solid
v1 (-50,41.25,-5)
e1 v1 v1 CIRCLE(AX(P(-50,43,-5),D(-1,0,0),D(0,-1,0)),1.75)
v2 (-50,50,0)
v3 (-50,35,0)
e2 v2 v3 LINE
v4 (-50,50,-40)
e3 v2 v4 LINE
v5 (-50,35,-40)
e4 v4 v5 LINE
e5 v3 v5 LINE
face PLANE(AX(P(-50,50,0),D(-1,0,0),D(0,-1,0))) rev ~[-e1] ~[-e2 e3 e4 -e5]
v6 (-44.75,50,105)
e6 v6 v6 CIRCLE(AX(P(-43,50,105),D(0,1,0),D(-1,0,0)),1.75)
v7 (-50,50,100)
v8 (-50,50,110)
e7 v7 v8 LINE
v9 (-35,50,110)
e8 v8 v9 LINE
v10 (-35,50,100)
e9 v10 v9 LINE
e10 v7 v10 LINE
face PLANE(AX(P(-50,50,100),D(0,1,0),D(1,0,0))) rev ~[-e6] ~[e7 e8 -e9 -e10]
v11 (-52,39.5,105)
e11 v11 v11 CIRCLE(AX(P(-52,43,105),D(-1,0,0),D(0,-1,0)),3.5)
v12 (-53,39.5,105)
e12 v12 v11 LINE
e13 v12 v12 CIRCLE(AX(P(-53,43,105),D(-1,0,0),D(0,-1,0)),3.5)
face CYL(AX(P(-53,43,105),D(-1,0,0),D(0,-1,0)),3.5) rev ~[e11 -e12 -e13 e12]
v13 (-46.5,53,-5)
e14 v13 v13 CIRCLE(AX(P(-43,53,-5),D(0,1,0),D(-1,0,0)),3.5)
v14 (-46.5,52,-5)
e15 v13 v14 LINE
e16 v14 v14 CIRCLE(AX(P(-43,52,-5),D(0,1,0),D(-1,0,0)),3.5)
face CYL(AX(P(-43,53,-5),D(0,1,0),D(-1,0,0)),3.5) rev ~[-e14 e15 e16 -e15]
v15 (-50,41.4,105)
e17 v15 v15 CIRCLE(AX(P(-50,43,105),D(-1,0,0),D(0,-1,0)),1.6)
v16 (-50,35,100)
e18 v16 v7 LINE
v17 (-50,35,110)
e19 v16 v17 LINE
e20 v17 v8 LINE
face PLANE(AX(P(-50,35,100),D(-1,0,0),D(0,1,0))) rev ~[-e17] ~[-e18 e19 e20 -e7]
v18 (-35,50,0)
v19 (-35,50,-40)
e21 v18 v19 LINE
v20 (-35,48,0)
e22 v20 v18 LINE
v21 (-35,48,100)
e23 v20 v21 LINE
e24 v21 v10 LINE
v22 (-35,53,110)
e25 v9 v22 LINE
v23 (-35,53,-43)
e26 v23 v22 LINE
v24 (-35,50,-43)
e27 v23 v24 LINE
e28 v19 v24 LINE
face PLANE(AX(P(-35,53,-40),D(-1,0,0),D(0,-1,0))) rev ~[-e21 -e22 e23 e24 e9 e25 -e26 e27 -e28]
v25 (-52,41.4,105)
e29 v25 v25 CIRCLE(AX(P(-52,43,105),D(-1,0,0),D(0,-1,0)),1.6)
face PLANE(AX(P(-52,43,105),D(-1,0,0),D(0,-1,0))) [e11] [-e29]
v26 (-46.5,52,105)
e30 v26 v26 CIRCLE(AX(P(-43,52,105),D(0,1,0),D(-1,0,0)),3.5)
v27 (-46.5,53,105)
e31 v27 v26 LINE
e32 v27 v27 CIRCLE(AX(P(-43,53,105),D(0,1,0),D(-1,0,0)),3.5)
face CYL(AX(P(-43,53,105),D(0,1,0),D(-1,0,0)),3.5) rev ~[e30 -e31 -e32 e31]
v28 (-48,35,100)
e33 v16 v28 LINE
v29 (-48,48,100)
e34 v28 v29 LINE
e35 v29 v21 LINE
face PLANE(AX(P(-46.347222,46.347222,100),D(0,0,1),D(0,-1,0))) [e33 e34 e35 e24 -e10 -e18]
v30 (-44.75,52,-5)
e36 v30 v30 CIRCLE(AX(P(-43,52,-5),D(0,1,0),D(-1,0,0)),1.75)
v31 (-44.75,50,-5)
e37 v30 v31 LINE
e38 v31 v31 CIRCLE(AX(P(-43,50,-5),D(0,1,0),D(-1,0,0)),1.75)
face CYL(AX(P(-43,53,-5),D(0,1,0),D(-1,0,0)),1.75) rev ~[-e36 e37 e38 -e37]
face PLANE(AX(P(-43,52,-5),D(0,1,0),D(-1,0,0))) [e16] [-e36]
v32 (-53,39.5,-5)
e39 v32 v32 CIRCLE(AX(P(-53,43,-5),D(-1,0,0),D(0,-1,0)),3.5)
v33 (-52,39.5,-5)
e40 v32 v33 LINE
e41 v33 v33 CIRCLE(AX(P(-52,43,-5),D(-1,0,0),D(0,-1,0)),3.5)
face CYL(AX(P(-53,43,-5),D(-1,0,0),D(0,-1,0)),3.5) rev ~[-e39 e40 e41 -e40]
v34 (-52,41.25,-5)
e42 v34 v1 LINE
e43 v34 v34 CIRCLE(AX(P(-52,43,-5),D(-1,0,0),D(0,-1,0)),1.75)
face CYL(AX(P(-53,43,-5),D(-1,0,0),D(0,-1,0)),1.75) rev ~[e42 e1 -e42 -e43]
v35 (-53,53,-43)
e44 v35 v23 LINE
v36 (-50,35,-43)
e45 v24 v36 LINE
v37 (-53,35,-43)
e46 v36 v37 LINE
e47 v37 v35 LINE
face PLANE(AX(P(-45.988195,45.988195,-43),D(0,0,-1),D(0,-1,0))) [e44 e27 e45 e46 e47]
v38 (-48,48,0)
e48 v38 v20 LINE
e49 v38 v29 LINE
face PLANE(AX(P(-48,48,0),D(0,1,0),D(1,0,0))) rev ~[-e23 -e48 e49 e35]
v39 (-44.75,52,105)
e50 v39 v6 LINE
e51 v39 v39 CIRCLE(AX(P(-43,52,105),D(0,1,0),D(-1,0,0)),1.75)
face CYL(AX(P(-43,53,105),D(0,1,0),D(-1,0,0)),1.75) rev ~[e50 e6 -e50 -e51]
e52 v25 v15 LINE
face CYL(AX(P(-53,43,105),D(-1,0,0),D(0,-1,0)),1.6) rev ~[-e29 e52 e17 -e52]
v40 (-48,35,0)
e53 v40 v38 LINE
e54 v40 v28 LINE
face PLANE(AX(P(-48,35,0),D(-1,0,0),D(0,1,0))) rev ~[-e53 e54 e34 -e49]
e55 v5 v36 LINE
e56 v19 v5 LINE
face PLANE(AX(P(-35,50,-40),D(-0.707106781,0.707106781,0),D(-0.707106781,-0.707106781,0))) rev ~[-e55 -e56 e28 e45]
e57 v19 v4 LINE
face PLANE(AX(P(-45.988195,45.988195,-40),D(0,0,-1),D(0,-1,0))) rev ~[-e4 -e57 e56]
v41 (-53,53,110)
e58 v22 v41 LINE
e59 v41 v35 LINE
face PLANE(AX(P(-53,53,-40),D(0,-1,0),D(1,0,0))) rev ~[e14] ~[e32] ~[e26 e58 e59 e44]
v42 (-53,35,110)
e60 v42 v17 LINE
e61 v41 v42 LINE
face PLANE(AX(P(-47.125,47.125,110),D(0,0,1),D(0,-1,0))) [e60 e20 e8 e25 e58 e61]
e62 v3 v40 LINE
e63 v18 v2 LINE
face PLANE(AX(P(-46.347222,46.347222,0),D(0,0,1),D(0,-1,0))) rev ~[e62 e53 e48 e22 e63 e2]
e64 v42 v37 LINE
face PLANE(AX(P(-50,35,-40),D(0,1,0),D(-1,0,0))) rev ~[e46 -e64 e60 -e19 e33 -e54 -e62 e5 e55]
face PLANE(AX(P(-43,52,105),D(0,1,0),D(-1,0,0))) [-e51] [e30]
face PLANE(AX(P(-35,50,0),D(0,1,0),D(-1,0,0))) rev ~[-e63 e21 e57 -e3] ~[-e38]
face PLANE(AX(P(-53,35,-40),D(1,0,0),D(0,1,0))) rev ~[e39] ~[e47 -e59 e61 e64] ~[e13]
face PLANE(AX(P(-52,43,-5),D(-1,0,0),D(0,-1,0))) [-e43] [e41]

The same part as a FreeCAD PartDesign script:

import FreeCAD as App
import Part
import Sketcher
Q = App.Units.Quantity

doc = App.newDocument("Part")
body = doc.addObject("PartDesign::Body", "Body")

sketch1 = doc.addObject("Sketcher::SketchObject", "Sketch")
body.addObject(sketch1)
sketch1.AttachmentSupport = (doc.XY_Plane, [""])
sketch1.MapMode = "FlatFace"
sketch1.addGeometry(Part.LineSegment(App.Vector(-53, -35, 0), App.Vector(-53, -53, 0)), False)
sketch1.addGeometry(Part.LineSegment(App.Vector(-53, -53, 0), App.Vector(-35, -53, 0)), False)
sketch1.addGeometry(Part.LineSegment(App.Vector(-35, -53, 0), App.Vector(-35, -48, 0)), False)
sketch1.addGeometry(Part.LineSegment(App.Vector(-35, -48, 0), App.Vector(-48, -48, 0)), False)
sketch1.addGeometry(Part.LineSegment(App.Vector(-48, -48, 0), App.Vector(-48, -35, 0)), False)
sketch1.addGeometry(Part.LineSegment(App.Vector(-48, -35, 0), App.Vector(-53, -35, 0)), False)
sketch1.addConstraint(Sketcher.Constraint("Coincident", 0, 2, 1, 1))
sketch1.addConstraint(Sketcher.Constraint("Coincident", 1, 2, 2, 1))
sketch1.addConstraint(Sketcher.Constraint("Coincident", 2, 2, 3, 1))
sketch1.addConstraint(Sketcher.Constraint("Coincident", 3, 2, 4, 1))
sketch1.addConstraint(Sketcher.Constraint("Coincident", 4, 2, 5, 1))
sketch1.addConstraint(Sketcher.Constraint("Coincident", 5, 2, 0, 1))
sketch1.addConstraint(Sketcher.Constraint("Vertical", 0))
sketch1.addConstraint(Sketcher.Constraint("Horizontal", 1))
sketch1.addConstraint(Sketcher.Constraint("Vertical", 2))
sketch1.addConstraint(Sketcher.Constraint("Horizontal", 3))
sketch1.addConstraint(Sketcher.Constraint("Vertical", 4))
sketch1.addConstraint(Sketcher.Constraint("Horizontal", 5))
sketch1.addConstraint(Sketcher.Constraint("Equal", 1, 0))
sketch1.addConstraint(Sketcher.Constraint("Equal", 5, 2))
sketch1.addConstraint(Sketcher.Constraint("DistanceX", 1, 1, 1, 2, Q("18 mm")))
sketch1.addConstraint(Sketcher.Constraint("DistanceX", 3, 2, 3, 1, Q("13 mm")))
sketch1.addConstraint(Sketcher.Constraint("DistanceX", 0, 2, -1, 1, Q("53 mm")))
sketch1.addConstraint(Sketcher.Constraint("DistanceY", 0, 2, -1, 1, Q("53 mm")))
pad1 = doc.addObject("PartDesign::Pad", "Pad")
body.addObject(pad1)
pad1.Profile = sketch1
pad1.Length = 100

sketch2 = doc.addObject("Sketcher::SketchObject", "Sketch001")
body.addObject(sketch2)
sketch2.AttachmentSupport = (doc.XY_Plane, [""])
sketch2.MapMode = "FlatFace"
sketch2.AttachmentOffset = App.Placement(App.Vector(0, 0, 100), App.Rotation())
sketch2.addGeometry(Part.LineSegment(App.Vector(-53, -35, 0), App.Vector(-53, -53, 0)), False)
sketch2.addGeometry(Part.LineSegment(App.Vector(-53, -53, 0), App.Vector(-35, -53, 0)), False)
sketch2.addGeometry(Part.LineSegment(App.Vector(-35, -53, 0), App.Vector(-35, -50, 0)), False)
sketch2.addGeometry(Part.LineSegment(App.Vector(-35, -50, 0), App.Vector(-50, -50, 0)), False)
sketch2.addGeometry(Part.LineSegment(App.Vector(-50, -50, 0), App.Vector(-50, -35, 0)), False)
sketch2.addGeometry(Part.LineSegment(App.Vector(-50, -35, 0), App.Vector(-53, -35, 0)), False)
sketch2.addConstraint(Sketcher.Constraint("Coincident", 0, 2, 1, 1))
sketch2.addConstraint(Sketcher.Constraint("Coincident", 1, 2, 2, 1))
sketch2.addConstraint(Sketcher.Constraint("Coincident", 2, 2, 3, 1))
sketch2.addConstraint(Sketcher.Constraint("Coincident", 3, 2, 4, 1))
sketch2.addConstraint(Sketcher.Constraint("Coincident", 4, 2, 5, 1))
sketch2.addConstraint(Sketcher.Constraint("Coincident", 5, 2, 0, 1))
sketch2.addConstraint(Sketcher.Constraint("Vertical", 0))
sketch2.addConstraint(Sketcher.Constraint("Horizontal", 1))
sketch2.addConstraint(Sketcher.Constraint("Vertical", 2))
sketch2.addConstraint(Sketcher.Constraint("Horizontal", 3))
sketch2.addConstraint(Sketcher.Constraint("Vertical", 4))
sketch2.addConstraint(Sketcher.Constraint("Horizontal", 5))
sketch2.addConstraint(Sketcher.Constraint("Equal", 1, 0))
sketch2.addConstraint(Sketcher.Constraint("Equal", 5, 2))
sketch2.addConstraint(Sketcher.Constraint("DistanceX", 1, 1, 1, 2, Q("18 mm")))
sketch2.addConstraint(Sketcher.Constraint("DistanceX", 3, 2, 3, 1, Q("15 mm")))
sketch2.addConstraint(Sketcher.Constraint("DistanceX", 0, 2, -1, 1, Q("53 mm")))
sketch2.addConstraint(Sketcher.Constraint("DistanceY", 0, 2, -1, 1, Q("53 mm")))
pad2 = doc.addObject("PartDesign::Pad", "Pad001")
body.addObject(pad2)
pad2.Profile = sketch2
pad2.Length = 10

sketch3 = doc.addObject("Sketcher::SketchObject", "Sketch002")
body.addObject(sketch3)
sketch3.AttachmentSupport = (doc.XZ_Plane, [""])
sketch3.MapMode = "FlatFace"
sketch3.AttachmentOffset = App.Placement(App.Vector(0, 0, 53), App.Rotation())
sketch3.addGeometry(Part.Circle(App.Vector(-43, 105, 0), App.Vector(0, 0, 1), 1.6), False)
sketch3.addConstraint(Sketcher.Constraint("Diameter", 0, Q("3.2 mm")))
sketch3.addConstraint(Sketcher.Constraint("DistanceX", 0, 3, -1, 1, Q("43 mm")))
sketch3.addConstraint(Sketcher.Constraint("DistanceY", -1, 1, 0, 3, Q("105 mm")))
pocket1 = doc.addObject("PartDesign::Pocket", "Pocket")
body.addObject(pocket1)
pocket1.Profile = sketch3
pocket1.Length = 5

sketch4 = doc.addObject("Sketcher::SketchObject", "Sketch003")
body.addObject(sketch4)
sketch4.AttachmentSupport = (doc.XZ_Plane, [""])
sketch4.MapMode = "FlatFace"
sketch4.AttachmentOffset = App.Placement(App.Vector(0, 0, 53), App.Rotation())
sketch4.addGeometry(Part.Circle(App.Vector(-43, 105, 0), App.Vector(0, 0, 1), 3.5), False)
sketch4.addConstraint(Sketcher.Constraint("Diameter", 0, Q("7 mm")))
sketch4.addConstraint(Sketcher.Constraint("DistanceX", 0, 3, -1, 1, Q("43 mm")))
sketch4.addConstraint(Sketcher.Constraint("DistanceY", -1, 1, 0, 3, Q("105 mm")))
pocket2 = doc.addObject("PartDesign::Pocket", "Pocket001")
body.addObject(pocket2)
pocket2.Profile = sketch4
pocket2.Length = 1

sketch5 = doc.addObject("Sketcher::SketchObject", "Sketch004")
body.addObject(sketch5)
sketch5.AttachmentSupport = (doc.YZ_Plane, [""])
sketch5.MapMode = "FlatFace"
sketch5.AttachmentOffset = App.Placement(App.Vector(0, 0, -53), App.Rotation())
sketch5.addGeometry(Part.Circle(App.Vector(-43, 105, 0), App.Vector(0, 0, 1), 1.8), False)
sketch5.addConstraint(Sketcher.Constraint("Diameter", 0, Q("3.5 mm")))
sketch5.addConstraint(Sketcher.Constraint("DistanceX", 0, 3, -1, 1, Q("43 mm")))
sketch5.addConstraint(Sketcher.Constraint("DistanceY", -1, 1, 0, 3, Q("105 mm")))
pocket3 = doc.addObject("PartDesign::Pocket", "Pocket002")
body.addObject(pocket3)
pocket3.Profile = sketch5
pocket3.Length = 5
pocket3.Reversed = True

sketch6 = doc.addObject("Sketcher::SketchObject", "Sketch005")
body.addObject(sketch6)
sketch6.AttachmentSupport = (doc.YZ_Plane, [""])
sketch6.MapMode = "FlatFace"
sketch6.AttachmentOffset = App.Placement(App.Vector(0, 0, -53), App.Rotation())
sketch6.addGeometry(Part.Circle(App.Vector(-43, 105, 0), App.Vector(0, 0, 1), 3.5), False)
sketch6.addConstraint(Sketcher.Constraint("Diameter", 0, Q("7 mm")))
sketch6.addConstraint(Sketcher.Constraint("DistanceX", 0, 3, -1, 1, Q("43 mm")))
sketch6.addConstraint(Sketcher.Constraint("DistanceY", -1, 1, 0, 3, Q("105 mm")))
pocket4 = doc.addObject("PartDesign::Pocket", "Pocket003")
body.addObject(pocket4)
pocket4.Profile = sketch6
pocket4.Length = 1
pocket4.Reversed = True

sketch7 = doc.addObject("Sketcher::SketchObject", "Sketch006")
body.addObject(sketch7)
sketch7.AttachmentSupport = (doc.XY_Plane, [""])
sketch7.MapMode = "FlatFace"
sketch7.addGeometry(Part.LineSegment(App.Vector(-35, -53, 0), App.Vector(-53, -53, 0)), False)
sketch7.addGeometry(Part.LineSegment(App.Vector(-53, -53, 0), App.Vector(-53, -35, 0)), False)
sketch7.addGeometry(Part.LineSegment(App.Vector(-53, -35, 0), App.Vector(-50, -35, 0)), False)
sketch7.addGeometry(Part.LineSegment(App.Vector(-50, -35, 0), App.Vector(-50, -50, 0)), False)
sketch7.addGeometry(Part.LineSegment(App.Vector(-50, -50, 0), App.Vector(-35, -50, 0)), False)
sketch7.addGeometry(Part.LineSegment(App.Vector(-35, -50, 0), App.Vector(-35, -53, 0)), False)
sketch7.addConstraint(Sketcher.Constraint("Coincident", 0, 2, 1, 1))
sketch7.addConstraint(Sketcher.Constraint("Coincident", 1, 2, 2, 1))
sketch7.addConstraint(Sketcher.Constraint("Coincident", 2, 2, 3, 1))
sketch7.addConstraint(Sketcher.Constraint("Coincident", 3, 2, 4, 1))
sketch7.addConstraint(Sketcher.Constraint("Coincident", 4, 2, 5, 1))
sketch7.addConstraint(Sketcher.Constraint("Coincident", 5, 2, 0, 1))
sketch7.addConstraint(Sketcher.Constraint("Horizontal", 0))
sketch7.addConstraint(Sketcher.Constraint("Vertical", 1))
sketch7.addConstraint(Sketcher.Constraint("Horizontal", 2))
sketch7.addConstraint(Sketcher.Constraint("Vertical", 3))
sketch7.addConstraint(Sketcher.Constraint("Horizontal", 4))
sketch7.addConstraint(Sketcher.Constraint("Vertical", 5))
sketch7.addConstraint(Sketcher.Constraint("Equal", 0, 1))
sketch7.addConstraint(Sketcher.Constraint("Equal", 4, 3))
sketch7.addConstraint(Sketcher.Constraint("DistanceX", 0, 2, 0, 1, Q("18 mm")))
sketch7.addConstraint(Sketcher.Constraint("DistanceX", 2, 1, 2, 2, Q("3 mm")))
sketch7.addConstraint(Sketcher.Constraint("DistanceX", 0, 2, -1, 1, Q("53 mm")))
sketch7.addConstraint(Sketcher.Constraint("DistanceY", 0, 2, -1, 1, Q("53 mm")))
pad3 = doc.addObject("PartDesign::Pad", "Pad002")
body.addObject(pad3)
pad3.Profile = sketch7
pad3.Length = 40
pad3.Reversed = True

sketch8 = doc.addObject("Sketcher::SketchObject", "Sketch007")
body.addObject(sketch8)
sketch8.AttachmentSupport = (doc.XY_Plane, [""])
sketch8.MapMode = "FlatFace"
sketch8.AttachmentOffset = App.Placement(App.Vector(0, 0, -40), App.Rotation())
sketch8.addGeometry(Part.LineSegment(App.Vector(-35, -50, 0), App.Vector(-35, -53, 0)), False)
sketch8.addGeometry(Part.LineSegment(App.Vector(-35, -53, 0), App.Vector(-53, -53, 0)), False)
sketch8.addGeometry(Part.LineSegment(App.Vector(-53, -53, 0), App.Vector(-53, -35, 0)), False)
sketch8.addGeometry(Part.LineSegment(App.Vector(-53, -35, 0), App.Vector(-50, -35, 0)), False)
sketch8.addGeometry(Part.LineSegment(App.Vector(-50, -35, 0), App.Vector(-35, -50, 0)), False)
sketch8.addConstraint(Sketcher.Constraint("Coincident", 0, 2, 1, 1))
sketch8.addConstraint(Sketcher.Constraint("Coincident", 1, 2, 2, 1))
sketch8.addConstraint(Sketcher.Constraint("Coincident", 2, 2, 3, 1))
sketch8.addConstraint(Sketcher.Constraint("Coincident", 3, 2, 4, 1))
sketch8.addConstraint(Sketcher.Constraint("Coincident", 4, 2, 0, 1))
sketch8.addConstraint(Sketcher.Constraint("Vertical", 0))
sketch8.addConstraint(Sketcher.Constraint("Horizontal", 1))
sketch8.addConstraint(Sketcher.Constraint("Vertical", 2))
sketch8.addConstraint(Sketcher.Constraint("Horizontal", 3))
sketch8.addConstraint(Sketcher.Constraint("Equal", 3, 0))
sketch8.addConstraint(Sketcher.Constraint("Equal", 1, 2))
sketch8.addConstraint(Sketcher.Constraint("DistanceX", 1, 2, 1, 1, Q("18 mm")))
sketch8.addConstraint(Sketcher.Constraint("DistanceX", 3, 1, 3, 2, Q("3 mm")))
sketch8.addConstraint(Sketcher.Constraint("DistanceX", 0, 2, -1, 1, Q("35 mm")))
sketch8.addConstraint(Sketcher.Constraint("DistanceY", 0, 2, -1, 1, Q("53 mm")))
pad4 = doc.addObject("PartDesign::Pad", "Pad003")
body.addObject(pad4)
pad4.Profile = sketch8
pad4.Length = 3
pad4.Reversed = True

sketch9 = doc.addObject("Sketcher::SketchObject", "Sketch008")
body.addObject(sketch9)
sketch9.AttachmentSupport = (doc.YZ_Plane, [""])
sketch9.MapMode = "FlatFace"
sketch9.AttachmentOffset = App.Placement(App.Vector(0, 0, -53), App.Rotation())
sketch9.addGeometry(Part.Circle(App.Vector(-43, -5, 0), App.Vector(0, 0, 1), 1.8), False)
sketch9.addConstraint(Sketcher.Constraint("Diameter", 0, Q("3.5 mm")))
sketch9.addConstraint(Sketcher.Constraint("DistanceX", 0, 3, -1, 1, Q("43 mm")))
sketch9.addConstraint(Sketcher.Constraint("DistanceY", 0, 3, -1, 1, Q("5 mm")))
pocket5 = doc.addObject("PartDesign::Pocket", "Pocket004")
body.addObject(pocket5)
pocket5.Profile = sketch9
pocket5.Length = 5
pocket5.Reversed = True

sketch10 = doc.addObject("Sketcher::SketchObject", "Sketch009")
body.addObject(sketch10)
sketch10.AttachmentSupport = (doc.YZ_Plane, [""])
sketch10.MapMode = "FlatFace"
sketch10.AttachmentOffset = App.Placement(App.Vector(0, 0, -53), App.Rotation())
sketch10.addGeometry(Part.Circle(App.Vector(-43, -5, 0), App.Vector(0, 0, 1), 3.5), False)
sketch10.addConstraint(Sketcher.Constraint("Diameter", 0, Q("7 mm")))
sketch10.addConstraint(Sketcher.Constraint("DistanceX", 0, 3, -1, 1, Q("43 mm")))
sketch10.addConstraint(Sketcher.Constraint("DistanceY", 0, 3, -1, 1, Q("5 mm")))
pocket6 = doc.addObject("PartDesign::Pocket", "Pocket005")
body.addObject(pocket6)
pocket6.Profile = sketch10
pocket6.Length = 1
pocket6.Reversed = True

sketch11 = doc.addObject("Sketcher::SketchObject", "Sketch010")
body.addObject(sketch11)
sketch11.AttachmentSupport = (doc.XZ_Plane, [""])
sketch11.MapMode = "FlatFace"
sketch11.AttachmentOffset = App.Placement(App.Vector(0, 0, 53), App.Rotation())
sketch11.addGeometry(Part.Circle(App.Vector(-43, -5, 0), App.Vector(0, 0, 1), 1.8), False)
sketch11.addConstraint(Sketcher.Constraint("Diameter", 0, Q("3.5 mm")))
sketch11.addConstraint(Sketcher.Constraint("DistanceX", 0, 3, -1, 1, Q("43 mm")))
sketch11.addConstraint(Sketcher.Constraint("DistanceY", 0, 3, -1, 1, Q("5 mm")))
pocket7 = doc.addObject("PartDesign::Pocket", "Pocket006")
body.addObject(pocket7)
pocket7.Profile = sketch11
pocket7.Length = 5

sketch12 = doc.addObject("Sketcher::SketchObject", "Sketch011")
body.addObject(sketch12)
sketch12.AttachmentSupport = (doc.XZ_Plane, [""])
sketch12.MapMode = "FlatFace"
sketch12.AttachmentOffset = App.Placement(App.Vector(0, 0, 53), App.Rotation())
sketch12.addGeometry(Part.Circle(App.Vector(-43, -5, 0), App.Vector(0, 0, 1), 3.5), False)
sketch12.addConstraint(Sketcher.Constraint("Diameter", 0, Q("7 mm")))
sketch12.addConstraint(Sketcher.Constraint("DistanceX", 0, 3, -1, 1, Q("43 mm")))
sketch12.addConstraint(Sketcher.Constraint("DistanceY", 0, 3, -1, 1, Q("5 mm")))
pocket8 = doc.addObject("PartDesign::Pocket", "Pocket007")
body.addObject(pocket8)
pocket8.Profile = sketch12
pocket8.Length = 1
body2 = doc.addObject("PartDesign::Body", "Body001")
doc.recompute()

body.Placement = App.Placement(App.Vector(0, 0, 0), App.Rotation(App.Vector(0, 0, -1), 90))
boolean = doc.addObject("PartDesign::Boolean", "Boolean")
body2.addObject(boolean)
boolean.Type = "Fuse"
boolean.addObjects([body])

doc.recompute()
